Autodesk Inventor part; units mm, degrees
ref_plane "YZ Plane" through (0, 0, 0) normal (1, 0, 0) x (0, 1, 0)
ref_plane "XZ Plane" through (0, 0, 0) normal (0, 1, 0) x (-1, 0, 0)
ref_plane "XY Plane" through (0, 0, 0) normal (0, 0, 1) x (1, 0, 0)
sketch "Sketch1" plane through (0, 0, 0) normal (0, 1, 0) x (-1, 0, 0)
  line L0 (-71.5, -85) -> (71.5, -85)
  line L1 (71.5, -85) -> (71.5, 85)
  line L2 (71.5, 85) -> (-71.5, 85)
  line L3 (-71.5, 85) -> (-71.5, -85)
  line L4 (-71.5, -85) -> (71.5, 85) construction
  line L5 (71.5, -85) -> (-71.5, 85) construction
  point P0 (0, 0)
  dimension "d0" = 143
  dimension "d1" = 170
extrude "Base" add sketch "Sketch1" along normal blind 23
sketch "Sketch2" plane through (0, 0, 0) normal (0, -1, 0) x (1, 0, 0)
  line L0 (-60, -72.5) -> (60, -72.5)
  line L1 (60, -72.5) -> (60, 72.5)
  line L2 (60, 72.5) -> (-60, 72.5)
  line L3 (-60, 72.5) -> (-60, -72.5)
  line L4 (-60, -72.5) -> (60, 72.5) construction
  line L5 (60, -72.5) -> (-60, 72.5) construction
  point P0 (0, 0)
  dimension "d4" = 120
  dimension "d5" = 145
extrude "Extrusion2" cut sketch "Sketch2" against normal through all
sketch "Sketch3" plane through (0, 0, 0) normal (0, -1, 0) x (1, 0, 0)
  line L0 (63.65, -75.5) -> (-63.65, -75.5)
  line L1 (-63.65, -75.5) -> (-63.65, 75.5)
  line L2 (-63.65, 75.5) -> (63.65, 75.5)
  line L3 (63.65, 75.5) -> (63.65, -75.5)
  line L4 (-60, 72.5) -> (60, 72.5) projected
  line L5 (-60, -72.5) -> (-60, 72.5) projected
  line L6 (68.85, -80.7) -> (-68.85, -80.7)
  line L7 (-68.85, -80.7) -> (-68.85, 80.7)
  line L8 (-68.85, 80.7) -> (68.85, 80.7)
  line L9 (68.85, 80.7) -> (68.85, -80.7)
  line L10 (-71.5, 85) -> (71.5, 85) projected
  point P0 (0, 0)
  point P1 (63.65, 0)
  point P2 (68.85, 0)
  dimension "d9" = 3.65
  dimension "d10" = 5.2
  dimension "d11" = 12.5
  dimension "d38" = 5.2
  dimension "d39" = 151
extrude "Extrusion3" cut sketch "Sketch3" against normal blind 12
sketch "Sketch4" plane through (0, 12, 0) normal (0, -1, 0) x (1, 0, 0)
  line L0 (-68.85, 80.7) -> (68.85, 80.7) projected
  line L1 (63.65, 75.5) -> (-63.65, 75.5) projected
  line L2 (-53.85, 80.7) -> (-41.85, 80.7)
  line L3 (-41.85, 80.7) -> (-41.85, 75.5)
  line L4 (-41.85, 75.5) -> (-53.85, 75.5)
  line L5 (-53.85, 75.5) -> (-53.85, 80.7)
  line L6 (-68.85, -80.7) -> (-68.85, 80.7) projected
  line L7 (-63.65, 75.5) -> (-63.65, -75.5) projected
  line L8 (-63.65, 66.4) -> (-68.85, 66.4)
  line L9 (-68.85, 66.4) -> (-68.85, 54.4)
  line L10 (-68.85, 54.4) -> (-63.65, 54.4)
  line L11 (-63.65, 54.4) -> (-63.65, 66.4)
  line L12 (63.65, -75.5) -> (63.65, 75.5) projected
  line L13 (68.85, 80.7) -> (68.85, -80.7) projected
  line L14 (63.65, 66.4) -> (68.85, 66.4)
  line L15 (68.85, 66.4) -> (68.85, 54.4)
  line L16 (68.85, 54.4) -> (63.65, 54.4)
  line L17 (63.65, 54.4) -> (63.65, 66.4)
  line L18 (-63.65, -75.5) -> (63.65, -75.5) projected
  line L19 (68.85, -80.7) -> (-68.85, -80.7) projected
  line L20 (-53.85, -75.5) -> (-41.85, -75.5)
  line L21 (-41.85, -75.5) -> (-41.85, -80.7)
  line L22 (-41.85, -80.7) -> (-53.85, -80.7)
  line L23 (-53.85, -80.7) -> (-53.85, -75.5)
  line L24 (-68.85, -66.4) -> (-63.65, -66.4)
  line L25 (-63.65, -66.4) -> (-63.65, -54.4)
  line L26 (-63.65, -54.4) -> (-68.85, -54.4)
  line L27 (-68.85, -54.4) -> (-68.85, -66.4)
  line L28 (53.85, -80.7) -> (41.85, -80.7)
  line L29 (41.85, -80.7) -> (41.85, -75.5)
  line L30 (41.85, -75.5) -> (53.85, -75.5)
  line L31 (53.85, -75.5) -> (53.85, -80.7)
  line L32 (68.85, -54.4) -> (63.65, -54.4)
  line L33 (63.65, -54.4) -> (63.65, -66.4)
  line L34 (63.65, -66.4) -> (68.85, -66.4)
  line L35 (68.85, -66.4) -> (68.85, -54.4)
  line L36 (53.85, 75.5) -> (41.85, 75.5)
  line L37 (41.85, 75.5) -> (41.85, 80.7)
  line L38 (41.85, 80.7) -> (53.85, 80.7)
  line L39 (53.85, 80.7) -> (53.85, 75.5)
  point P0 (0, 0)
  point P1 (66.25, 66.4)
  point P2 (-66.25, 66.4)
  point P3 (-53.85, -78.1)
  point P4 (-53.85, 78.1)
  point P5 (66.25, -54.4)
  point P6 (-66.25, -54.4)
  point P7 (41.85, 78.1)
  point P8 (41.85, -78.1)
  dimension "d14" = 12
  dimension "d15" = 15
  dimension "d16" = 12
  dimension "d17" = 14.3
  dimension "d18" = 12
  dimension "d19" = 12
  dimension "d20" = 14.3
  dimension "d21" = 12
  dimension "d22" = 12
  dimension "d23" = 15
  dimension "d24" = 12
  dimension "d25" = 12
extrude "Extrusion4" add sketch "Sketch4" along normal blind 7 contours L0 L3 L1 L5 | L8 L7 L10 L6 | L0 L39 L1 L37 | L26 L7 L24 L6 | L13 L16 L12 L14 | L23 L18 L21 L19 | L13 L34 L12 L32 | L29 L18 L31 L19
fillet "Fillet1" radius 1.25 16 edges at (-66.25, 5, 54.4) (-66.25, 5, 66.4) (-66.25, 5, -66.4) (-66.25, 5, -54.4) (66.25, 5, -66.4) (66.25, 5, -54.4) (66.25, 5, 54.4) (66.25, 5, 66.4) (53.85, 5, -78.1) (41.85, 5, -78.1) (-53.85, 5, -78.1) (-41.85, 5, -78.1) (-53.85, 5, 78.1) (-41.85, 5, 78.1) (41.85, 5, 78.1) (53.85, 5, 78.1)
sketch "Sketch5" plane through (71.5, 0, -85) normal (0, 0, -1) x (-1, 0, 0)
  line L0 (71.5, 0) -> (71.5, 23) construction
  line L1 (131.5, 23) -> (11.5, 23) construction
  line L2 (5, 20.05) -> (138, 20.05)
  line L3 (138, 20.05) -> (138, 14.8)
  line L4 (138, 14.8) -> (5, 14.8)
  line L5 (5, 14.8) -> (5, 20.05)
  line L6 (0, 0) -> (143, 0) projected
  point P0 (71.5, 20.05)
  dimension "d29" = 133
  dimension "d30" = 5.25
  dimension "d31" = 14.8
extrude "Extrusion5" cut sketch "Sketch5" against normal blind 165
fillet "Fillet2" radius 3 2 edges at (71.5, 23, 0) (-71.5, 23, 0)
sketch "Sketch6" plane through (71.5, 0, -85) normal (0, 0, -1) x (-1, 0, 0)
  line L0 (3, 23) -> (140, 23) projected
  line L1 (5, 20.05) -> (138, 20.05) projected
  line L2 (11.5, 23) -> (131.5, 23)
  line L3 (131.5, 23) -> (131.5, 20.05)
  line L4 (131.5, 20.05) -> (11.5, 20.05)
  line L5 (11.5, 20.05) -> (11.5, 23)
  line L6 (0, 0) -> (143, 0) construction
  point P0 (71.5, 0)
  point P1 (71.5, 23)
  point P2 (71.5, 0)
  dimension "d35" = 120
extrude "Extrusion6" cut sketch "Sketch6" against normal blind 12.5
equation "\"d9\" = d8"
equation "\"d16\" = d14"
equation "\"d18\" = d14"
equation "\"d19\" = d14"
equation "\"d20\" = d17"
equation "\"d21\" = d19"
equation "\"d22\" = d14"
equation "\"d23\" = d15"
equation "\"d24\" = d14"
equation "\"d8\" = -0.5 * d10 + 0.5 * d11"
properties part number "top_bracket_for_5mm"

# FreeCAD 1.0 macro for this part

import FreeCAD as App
import Part
import Sketcher

V = App.Vector
Q = App.Units.Quantity


def edges_at(feature, points):
    """Names of the edges that pass closest to the given points."""
    edges = feature.Shape.Edges
    near = lambda p: min(range(len(edges)), key=lambda i: edges[i].distToShape(Part.Vertex(*p))[0])
    return sorted({f"Edge{near(p) + 1}" for p in points})

doc = App.newDocument("Part")
params = doc.addObject("Spreadsheet::Sheet", "Params")
for row, (alias, value) in enumerate([
    ("sketch1_width", "143 mm"),
    ("sketch1_height", "170 mm"),
    ("pad1_length", "23 mm"),
    ("sketch2_width", "120 mm"),
    ("sketch2_height", "145 mm"),
    ("sketch3_height", "151 mm"),
    ("sketch3_width", "137.7 mm"),
    ("pocket2_length", "12 mm"),
    ("sketch4_width", "12 mm"),
    ("sketch4_width2", "5.2 mm"),
    ("pad2_length", "7 mm"),
    ("fillet_radius", "1.25 mm"),
    ("sketch5_width", "133 mm"),
    ("sketch5_height", "5.25 mm"),
    ("pocket3_length", "165 mm"),
    ("fillet2_radius", "3 mm"),
    ("sketch6_width", "120 mm"),
    ("sketch6_height", "2.95 mm"),
    ("pocket4_length", "12.5 mm"),
], start=1):
    params.set(f"A{row}", alias)
    params.set(f"B{row}", "=" + value)
    params.setAlias(f"B{row}", alias)

body = doc.addObject("PartDesign::Body", "Body")

# Sketch on XZ plane
sketch1 = doc.addObject("Sketcher::SketchObject", "Sketch")
body.addObject(sketch1)
sketch1.AttachmentSupport = (doc.XZ_Plane, [""])
sketch1.MapMode = "FlatFace"
sketch1.addGeometry([
    Part.LineSegment(V(72, 85, 0), V(72, -85, 0)),
    Part.LineSegment(V(72, -85, 0), V(-72, -85, 0)),
    Part.LineSegment(V(-72, -85, 0), V(-72, 85, 0)),
    Part.LineSegment(V(-72, 85, 0), V(72, 85, 0)),
], False)
sketch1.addConstraint([
    Sketcher.Constraint("Coincident", 0, 2, 1, 1),
    Sketcher.Constraint("Coincident", 1, 2, 2, 1),
    Sketcher.Constraint("Coincident", 2, 2, 3, 1),
    Sketcher.Constraint("Coincident", 3, 2, 0, 1),
    Sketcher.Constraint("Vertical", 0),
    Sketcher.Constraint("Horizontal", 1),
    Sketcher.Constraint("Vertical", 2),
    Sketcher.Constraint("Horizontal", 3),
    Sketcher.Constraint("Symmetric", 0, 2, 2, 2, -1, 1),
    Sketcher.Constraint("DistanceX", 1, 2, 1, 1, Q("143 mm")),
    Sketcher.Constraint("DistanceY", 0, 2, 0, 1, Q("170 mm")),
])
sketch1.setExpression("Constraints[9]", "Params.sketch1_width")
sketch1.setExpression("Constraints[10]", "Params.sketch1_height")
pad1 = doc.addObject("PartDesign::Pad", "Pad")
body.addObject(pad1)
pad1.Profile = sketch1
pad1.setExpression("Length", "Params.pad1_length")
pad1.Reversed = True

# Sketch on XZ plane
sketch2 = doc.addObject("Sketcher::SketchObject", "Sketch001")
body.addObject(sketch2)
sketch2.AttachmentSupport = (doc.XZ_Plane, [""])
sketch2.MapMode = "FlatFace"
sketch2.addGeometry([
    Part.LineSegment(V(-60, 72, 0), V(-60, -72, 0)),
    Part.LineSegment(V(-60, -72, 0), V(60, -72, 0)),
    Part.LineSegment(V(60, -72, 0), V(60, 72, 0)),
    Part.LineSegment(V(60, 72, 0), V(-60, 72, 0)),
], False)
sketch2.addConstraint([
    Sketcher.Constraint("Coincident", 0, 2, 1, 1),
    Sketcher.Constraint("Coincident", 1, 2, 2, 1),
    Sketcher.Constraint("Coincident", 2, 2, 3, 1),
    Sketcher.Constraint("Coincident", 3, 2, 0, 1),
    Sketcher.Constraint("Vertical", 0),
    Sketcher.Constraint("Horizontal", 1),
    Sketcher.Constraint("Vertical", 2),
    Sketcher.Constraint("Horizontal", 3),
    Sketcher.Constraint("Symmetric", 0, 2, 2, 2, -1, 1),
    Sketcher.Constraint("DistanceX", 1, 1, 1, 2, Q("120 mm")),
    Sketcher.Constraint("DistanceY", 0, 2, 0, 1, Q("145 mm")),
])
sketch2.setExpression("Constraints[9]", "Params.sketch2_width")
sketch2.setExpression("Constraints[10]", "Params.sketch2_height")
pocket1 = doc.addObject("PartDesign::Pocket", "Pocket")
body.addObject(pocket1)
pocket1.Profile = sketch2
pocket1.Type = "ThroughAll"

# Sketch on XZ plane
sketch3 = doc.addObject("Sketcher::SketchObject", "Sketch002")
body.addObject(sketch3)
sketch3.AttachmentSupport = (doc.XZ_Plane, [""])
sketch3.MapMode = "FlatFace"
sketch3.addGeometry([
    Part.LineSegment(V(-69, -81, 0), V(69, -81, 0)),  # 0
    Part.LineSegment(V(69, -81, 0), V(69, 81, 0)),  # 1
    Part.LineSegment(V(69, 81, 0), V(-69, 81, 0)),  # 2
    Part.LineSegment(V(-69, 81, 0), V(-69, -81, 0)),  # 3
    Part.LineSegment(V(64, 76, 0), V(64, -76, 0)),  # 4
    Part.LineSegment(V(64, -76, 0), V(-64, -76, 0)),  # 5
    Part.LineSegment(V(-64, -76, 0), V(-64, 76, 0)),  # 6
    Part.LineSegment(V(-64, 76, 0), V(64, 76, 0)),  # 7
], False)
sketch3.addConstraint([
    Sketcher.Constraint("Coincident", 0, 2, 1, 1),
    Sketcher.Constraint("Coincident", 1, 2, 2, 1),
    Sketcher.Constraint("Coincident", 2, 2, 3, 1),
    Sketcher.Constraint("Coincident", 3, 2, 0, 1),
    Sketcher.Constraint("Coincident", 4, 2, 5, 1),
    Sketcher.Constraint("Coincident", 5, 2, 6, 1),
    Sketcher.Constraint("Coincident", 6, 2, 7, 1),
    Sketcher.Constraint("Coincident", 7, 2, 4, 1),
    Sketcher.Constraint("Horizontal", 0),
    Sketcher.Constraint("Vertical", 1),
    Sketcher.Constraint("Horizontal", 2),
    Sketcher.Constraint("Vertical", 3),
    Sketcher.Constraint("Vertical", 4),
    Sketcher.Constraint("Horizontal", 5),
    Sketcher.Constraint("Vertical", 6),
    Sketcher.Constraint("Horizontal", 7),
    Sketcher.Constraint("Symmetric", 0, 2, 2, 2, -1, 1),
    Sketcher.Constraint("Symmetric", 4, 2, 6, 2, -1, 1),
    Sketcher.Constraint("DistanceY", 4, 2, 4, 1, Q("151 mm")),
    Sketcher.Constraint("DistanceX", 4, 2, 0, 2, Q("5.2 mm")),
    Sketcher.Constraint("DistanceY", 0, 2, 4, 2, Q("5.2 mm")),
    Sketcher.Constraint("DistanceX", 0, 1, 0, 2, Q("137.7 mm")),
])
sketch3.setExpression("Constraints[18]", "Params.sketch3_height")
sketch3.setExpression("Constraints[21]", "Params.sketch3_width")
pocket2 = doc.addObject("PartDesign::Pocket", "Pocket001")
body.addObject(pocket2)
pocket2.Profile = sketch3
pocket2.setExpression("Length", "Params.pocket2_length")

# Sketch on XZ plane
sketch4 = doc.addObject("Sketcher::SketchObject", "Sketch003")
body.addObject(sketch4)
sketch4.AttachmentSupport = (doc.XZ_Plane, [""])
sketch4.MapMode = "FlatFace"
sketch4.AttachmentOffset = App.Placement(V(0, 0, -12), App.Rotation())
sketch4.addGeometry([
    Part.LineSegment(V(-42, 81, 0), V(-54, 81, 0)),  # 0
    Part.LineSegment(V(-54, 81, 0), V(-54, 76, 0)),  # 1
    Part.LineSegment(V(-54, 76, 0), V(-42, 76, 0)),  # 2
    Part.LineSegment(V(-42, 76, 0), V(-42, 81, 0)),  # 3
    Part.LineSegment(V(-64, 66, 0), V(-69, 66, 0)),  # 4
    Part.LineSegment(V(-69, 66, 0), V(-69, 54, 0)),  # 5
    Part.LineSegment(V(-69, 54, 0), V(-64, 54, 0)),  # 6
    Part.LineSegment(V(-64, 54, 0), V(-64, 66, 0)),  # 7
    Part.LineSegment(V(54, 81, 0), V(42, 81, 0)),  # 8
    Part.LineSegment(V(42, 81, 0), V(42, 76, 0)),  # 9
    Part.LineSegment(V(42, 76, 0), V(54, 76, 0)),  # 10
    Part.LineSegment(V(54, 76, 0), V(54, 81, 0)),  # 11
    Part.LineSegment(V(-64, -54, 0), V(-69, -54, 0)),  # 12
    Part.LineSegment(V(-69, -54, 0), V(-69, -66, 0)),  # 13
    Part.LineSegment(V(-69, -66, 0), V(-64, -66, 0)),  # 14
    Part.LineSegment(V(-64, -66, 0), V(-64, -54, 0)),  # 15
    Part.LineSegment(V(69, 54, 0), V(69, 66, 0)),  # 16
    Part.LineSegment(V(69, 66, 0), V(64, 66, 0)),  # 17
    Part.LineSegment(V(64, 66, 0), V(64, 54, 0)),  # 18
    Part.LineSegment(V(64, 54, 0), V(69, 54, 0)),  # 19
    Part.LineSegment(V(-54, -76, 0), V(-54, -81, 0)),  # 20
    Part.LineSegment(V(-54, -81, 0), V(-42, -81, 0)),  # 21
    Part.LineSegment(V(-42, -81, 0), V(-42, -76, 0)),  # 22
    Part.LineSegment(V(-42, -76, 0), V(-54, -76, 0)),  # 23
    Part.LineSegment(V(69, -66, 0), V(69, -54, 0)),  # 24
    Part.LineSegment(V(69, -54, 0), V(64, -54, 0)),  # 25
    Part.LineSegment(V(64, -54, 0), V(64, -66, 0)),  # 26
    Part.LineSegment(V(64, -66, 0), V(69, -66, 0)),  # 27
    Part.LineSegment(V(42, -76, 0), V(42, -81, 0)),  # 28
    Part.LineSegment(V(42, -81, 0), V(54, -81, 0)),  # 29
    Part.LineSegment(V(54, -81, 0), V(54, -76, 0)),  # 30
    Part.LineSegment(V(54, -76, 0), V(42, -76, 0)),  # 31
], False)
sketch4.addConstraint([
    Sketcher.Constraint("Coincident", 0, 2, 1, 1),
    Sketcher.Constraint("Coincident", 1, 2, 2, 1),
    Sketcher.Constraint("Coincident", 2, 2, 3, 1),
    Sketcher.Constraint("Coincident", 3, 2, 0, 1),
    Sketcher.Constraint("Coincident", 4, 2, 5, 1),
    Sketcher.Constraint("Coincident", 5, 2, 6, 1),
    Sketcher.Constraint("Coincident", 6, 2, 7, 1),
    Sketcher.Constraint("Coincident", 7, 2, 4, 1),
    Sketcher.Constraint("Coincident", 8, 2, 9, 1),
    Sketcher.Constraint("Coincident", 9, 2, 10, 1),
    Sketcher.Constraint("Coincident", 10, 2, 11, 1),
    Sketcher.Constraint("Coincident", 11, 2, 8, 1),
    Sketcher.Constraint("Coincident", 12, 2, 13, 1),
    Sketcher.Constraint("Coincident", 13, 2, 14, 1),
    Sketcher.Constraint("Coincident", 14, 2, 15, 1),
    Sketcher.Constraint("Coincident", 15, 2, 12, 1),
    Sketcher.Constraint("Coincident", 16, 2, 17, 1),
    Sketcher.Constraint("Coincident", 17, 2, 18, 1),
    Sketcher.Constraint("Coincident", 18, 2, 19, 1),
    Sketcher.Constraint("Coincident", 19, 2, 16, 1),
    Sketcher.Constraint("Coincident", 20, 2, 21, 1),
    Sketcher.Constraint("Coincident", 21, 2, 22, 1),
    Sketcher.Constraint("Coincident", 22, 2, 23, 1),
    Sketcher.Constraint("Coincident", 23, 2, 20, 1),
    Sketcher.Constraint("Coincident", 24, 2, 25, 1),
    Sketcher.Constraint("Coincident", 25, 2, 26, 1),
    Sketcher.Constraint("Coincident", 26, 2, 27, 1),
    Sketcher.Constraint("Coincident", 27, 2, 24, 1),
    Sketcher.Constraint("Coincident", 28, 2, 29, 1),
    Sketcher.Constraint("Coincident", 29, 2, 30, 1),
    Sketcher.Constraint("Coincident", 30, 2, 31, 1),
    Sketcher.Constraint("Coincident", 31, 2, 28, 1),
    Sketcher.Constraint("Horizontal", 0),
    Sketcher.Constraint("Vertical", 1),
    Sketcher.Constraint("Horizontal", 2),
    Sketcher.Constraint("Vertical", 3),
    Sketcher.Constraint("Horizontal", 4),
    Sketcher.Constraint("Vertical", 5),
    Sketcher.Constraint("Horizontal", 6),
    Sketcher.Constraint("Vertical", 7),
    Sketcher.Constraint("Horizontal", 8),
    Sketcher.Constraint("Vertical", 9),
    Sketcher.Constraint("Horizontal", 10),
    Sketcher.Constraint("Vertical", 11),
    Sketcher.Constraint("Horizontal", 12),
    Sketcher.Constraint("Vertical", 13),
    Sketcher.Constraint("Horizontal", 14),
    Sketcher.Constraint("Vertical", 15),
    Sketcher.Constraint("Vertical", 16),
    Sketcher.Constraint("Horizontal", 17),
    Sketcher.Constraint("Vertical", 18),
    Sketcher.Constraint("Horizontal", 19),
    Sketcher.Constraint("Vertical", 20),
    Sketcher.Constraint("Horizontal", 21),
    Sketcher.Constraint("Vertical", 22),
    Sketcher.Constraint("Horizontal", 23),
    Sketcher.Constraint("Vertical", 24),
    Sketcher.Constraint("Horizontal", 25),
    Sketcher.Constraint("Vertical", 26),
    Sketcher.Constraint("Horizontal", 27),
    Sketcher.Constraint("Vertical", 28),
    Sketcher.Constraint("Horizontal", 29),
    Sketcher.Constraint("Vertical", 30),
    Sketcher.Constraint("Horizontal", 31),
    Sketcher.Constraint("Symmetric", 13, 2, 16, 2, -1, 1),
    Sketcher.Constraint("Symmetric", 15, 2, 18, 2, -1, 1),
    Sketcher.Constraint("Symmetric", 11, 2, 20, 2, -1, 1),
    Sketcher.Constraint("Symmetric", 9, 2, 22, 2, -1, 1),
    Sketcher.Constraint("Symmetric", 5, 2, 24, 2, -1, 1),
    Sketcher.Constraint("Symmetric", 7, 2, 26, 2, -1, 1),
    Sketcher.Constraint("Symmetric", 3, 2, 28, 2, -1, 1),
    Sketcher.Constraint("Symmetric", 1, 2, 30, 2, -1, 1),
    Sketcher.Constraint("Symmetric", 3, 2, 8, 2, -2),
    Sketcher.Constraint("Symmetric", 1, 2, 10, 2, -2),
    Sketcher.Constraint("Symmetric", 4, 2, 16, 2, -2),
    Sketcher.Constraint("Symmetric", 6, 2, 18, 2, -2),
    Sketcher.Constraint("Equal", 27, 1),
    Sketcher.Constraint("Equal", 31, 5),
    Sketcher.Constraint("DistanceX", 0, 2, 0, 1, Q("12 mm")),
    Sketcher.Constraint("DistanceX", 4, 2, 1, 2, Q("15 mm")),
    Sketcher.Constraint("DistanceY", 4, 2, 0, 2, Q("14.3 mm")),
    Sketcher.Constraint("DistanceX", 4, 2, 4, 1, Q("5.2 mm")),
    Sketcher.Constraint("DistanceY", -1, 1, 0, 2, Q("80.7 mm")),
    Sketcher.Constraint("DistanceX", 3, 2, 8, 2, Q("83.7 mm")),
])
sketch4.setExpression("Constraints[78]", "Params.sketch4_width")
sketch4.setExpression("Constraints[81]", "Params.sketch4_width2")
pad2 = doc.addObject("PartDesign::Pad", "Pad001")
body.addObject(pad2)
pad2.Profile = sketch4
pad2.setExpression("Length", "Params.pad2_length")
doc.recompute()

fillet = doc.addObject("PartDesign::Fillet", "Fillet")
body.addObject(fillet)
fillet.Base = (pad2, edges_at(pad2, [
    (-66.25, 5, 54.4),
    (-66.25, 5, 66.4),
    (-66.25, 5, -66.4),
    (-66.25, 5, -54.4),
    (66.25, 5, -66.4),
    (66.25, 5, -54.4),
    (66.25, 5, 54.4),
    (66.25, 5, 66.4),
    (53.85, 5, -78.1),
    (41.85, 5, -78.1),
    (-53.85, 5, -78.1),
    (-41.85, 5, -78.1),
    (-53.85, 5, 78.1),
    (-41.85, 5, 78.1),
    (41.85, 5, 78.1),
    (53.85, 5, 78.1),
]))
fillet.setExpression("Radius", "Params.fillet_radius")

# Sketch on XY plane
sketch5 = doc.addObject("Sketcher::SketchObject", "Sketch004")
body.addObject(sketch5)
sketch5.AttachmentSupport = (doc.XY_Plane, [""])
sketch5.MapMode = "FlatFace"
sketch5.AttachmentOffset = App.Placement(V(0, 0, -85), App.Rotation())
sketch5.addGeometry([
    Part.LineSegment(V(-66, 20, 0), V(66, 20, 0)),
    Part.LineSegment(V(66, 20, 0), V(66, 15, 0)),
    Part.LineSegment(V(66, 15, 0), V(-66, 15, 0)),
    Part.LineSegment(V(-66, 15, 0), V(-66, 20, 0)),
], False)
sketch5.addConstraint([
    Sketcher.Constraint("Coincident", 0, 2, 1, 1),
    Sketcher.Constraint("Coincident", 1, 2, 2, 1),
    Sketcher.Constraint("Coincident", 2, 2, 3, 1),
    Sketcher.Constraint("Coincident", 3, 2, 0, 1),
    Sketcher.Constraint("Horizontal", 0),
    Sketcher.Constraint("Vertical", 1),
    Sketcher.Constraint("Horizontal", 2),
    Sketcher.Constraint("Vertical", 3),
    Sketcher.Constraint("DistanceX", 0, 1, 0, 2, Q("133 mm")),
    Sketcher.Constraint("DistanceY", 1, 2, 1, 1, Q("5.25 mm")),
    Sketcher.Constraint("DistanceY", -1, 1, 1, 2, Q("14.8 mm")),
    Sketcher.Constraint("DistanceX", -1, 1, 0, 2, Q("66.5 mm")),
])
sketch5.setExpression("Constraints[8]", "Params.sketch5_width")
sketch5.setExpression("Constraints[9]", "Params.sketch5_height")
pocket3 = doc.addObject("PartDesign::Pocket", "Pocket002")
body.addObject(pocket3)
pocket3.Profile = sketch5
pocket3.setExpression("Length", "Params.pocket3_length")
pocket3.Reversed = True
doc.recompute()

fillet2 = doc.addObject("PartDesign::Fillet", "Fillet001")
body.addObject(fillet2)
fillet2.Base = (pocket3, edges_at(pocket3, [(71.5, 23, 0), (-71.5, 23, 0)]))
fillet2.setExpression("Radius", "Params.fillet2_radius")

# Sketch on XY plane
sketch6 = doc.addObject("Sketcher::SketchObject", "Sketch005")
body.addObject(sketch6)
sketch6.AttachmentSupport = (doc.XY_Plane, [""])
sketch6.MapMode = "FlatFace"
sketch6.AttachmentOffset = App.Placement(V(0, 0, -85), App.Rotation())
sketch6.addGeometry([
    Part.LineSegment(V(-60, 23, 0), V(60, 23, 0)),
    Part.LineSegment(V(60, 23, 0), V(60, 20.1, 0)),
    Part.LineSegment(V(60, 20.1, 0), V(-60, 20.1, 0)),
    Part.LineSegment(V(-60, 20.1, 0), V(-60, 23, 0)),
], False)
sketch6.addConstraint([
    Sketcher.Constraint("Coincident", 0, 2, 1, 1),
    Sketcher.Constraint("Coincident", 1, 2, 2, 1),
    Sketcher.Constraint("Coincident", 2, 2, 3, 1),
    Sketcher.Constraint("Coincident", 3, 2, 0, 1),
    Sketcher.Constraint("Horizontal", 0),
    Sketcher.Constraint("Vertical", 1),
    Sketcher.Constraint("Horizontal", 2),
    Sketcher.Constraint("Vertical", 3),
    Sketcher.Constraint("DistanceX", 0, 1, 0, 2, Q("120 mm")),
    Sketcher.Constraint("DistanceX", -1, 1, 0, 2, Q("60 mm")),
    Sketcher.Constraint("DistanceY", -1, 1, 0, 2, Q("23 mm")),
    Sketcher.Constraint("DistanceY", 1, 2, 1, 1, Q("2.95 mm")),
])
sketch6.setExpression("Constraints[8]", "Params.sketch6_width")
sketch6.setExpression("Constraints[11]", "Params.sketch6_height")
pocket4 = doc.addObject("PartDesign::Pocket", "Pocket003")
body.addObject(pocket4)
pocket4.Profile = sketch6
pocket4.setExpression("Length", "Params.pocket4_length")
pocket4.Reversed = True

doc.recompute()
